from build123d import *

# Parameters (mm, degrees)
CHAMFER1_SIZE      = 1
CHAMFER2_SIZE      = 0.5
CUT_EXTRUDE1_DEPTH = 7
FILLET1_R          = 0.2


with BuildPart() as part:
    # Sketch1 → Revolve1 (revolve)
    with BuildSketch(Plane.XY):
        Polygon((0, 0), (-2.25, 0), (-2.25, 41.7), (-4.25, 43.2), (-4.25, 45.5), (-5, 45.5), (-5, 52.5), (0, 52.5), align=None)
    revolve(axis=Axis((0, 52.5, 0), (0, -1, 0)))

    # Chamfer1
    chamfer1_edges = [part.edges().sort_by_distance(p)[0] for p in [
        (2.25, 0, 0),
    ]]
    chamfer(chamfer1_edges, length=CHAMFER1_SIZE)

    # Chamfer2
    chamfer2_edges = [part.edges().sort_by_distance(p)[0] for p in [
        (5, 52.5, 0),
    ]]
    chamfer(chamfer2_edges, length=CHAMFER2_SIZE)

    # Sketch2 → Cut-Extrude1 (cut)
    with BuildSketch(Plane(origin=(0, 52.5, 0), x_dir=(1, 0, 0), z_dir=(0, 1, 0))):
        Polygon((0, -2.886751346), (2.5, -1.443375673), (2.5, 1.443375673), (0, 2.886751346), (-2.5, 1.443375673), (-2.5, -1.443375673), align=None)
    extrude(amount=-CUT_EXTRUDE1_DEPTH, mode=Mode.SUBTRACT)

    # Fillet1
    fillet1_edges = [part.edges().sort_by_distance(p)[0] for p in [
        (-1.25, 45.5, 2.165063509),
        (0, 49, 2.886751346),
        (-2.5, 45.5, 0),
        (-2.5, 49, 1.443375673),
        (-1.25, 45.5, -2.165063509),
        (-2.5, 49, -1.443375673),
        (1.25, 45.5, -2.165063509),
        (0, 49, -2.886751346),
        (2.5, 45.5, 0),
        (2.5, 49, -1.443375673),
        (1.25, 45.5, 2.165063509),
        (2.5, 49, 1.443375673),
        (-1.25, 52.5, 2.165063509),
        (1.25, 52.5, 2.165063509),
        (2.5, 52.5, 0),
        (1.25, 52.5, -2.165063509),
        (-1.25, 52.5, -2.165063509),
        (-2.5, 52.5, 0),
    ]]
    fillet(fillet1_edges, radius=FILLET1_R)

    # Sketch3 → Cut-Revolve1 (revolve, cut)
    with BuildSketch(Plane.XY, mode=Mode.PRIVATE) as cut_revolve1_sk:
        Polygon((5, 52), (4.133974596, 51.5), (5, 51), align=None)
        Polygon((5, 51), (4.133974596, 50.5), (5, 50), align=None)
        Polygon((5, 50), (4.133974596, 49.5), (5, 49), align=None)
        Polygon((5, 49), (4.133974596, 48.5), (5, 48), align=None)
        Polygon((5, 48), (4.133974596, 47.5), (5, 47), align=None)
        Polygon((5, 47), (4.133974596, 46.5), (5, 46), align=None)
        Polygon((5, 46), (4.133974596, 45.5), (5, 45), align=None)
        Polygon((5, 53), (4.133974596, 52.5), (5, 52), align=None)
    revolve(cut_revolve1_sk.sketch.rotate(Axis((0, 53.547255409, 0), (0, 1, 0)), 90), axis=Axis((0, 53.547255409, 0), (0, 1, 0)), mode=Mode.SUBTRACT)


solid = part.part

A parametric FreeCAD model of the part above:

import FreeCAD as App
import Part
import Sketcher
from FreeCAD import Vector
Q = App.Units.Quantity


def edges_at(feature, points):
    """Names of the edges that pass closest to the given points."""
    edges = feature.Shape.Edges
    near = lambda p: min(range(len(edges)), key=lambda i: edges[i].distToShape(Part.Vertex(*p))[0])
    return sorted({f"Edge{near(p) + 1}" for p in points})

doc = App.newDocument("Part")
params = doc.addObject("Spreadsheet::Sheet", "Params")
for row, (alias, value) in enumerate([
    ("sketch1_width", "5 mm"),
    ("sketch1_height", "7 mm"),
    ("sketch1_height2", "52.5 mm"),
    ("sketch1_height3", "2.3 mm"),
    ("sketch1_height4", "41.7 mm"),
    ("revolution_angle", "360 deg"),
    ("chamfer_size", "1 mm"),
    ("chamfer2_size", "0.5 mm"),
    ("pocket1_length", "7 mm"),
    ("fillet_radius", "0.2 mm"),
    ("sketch3_height", "1 mm"),
    ("groove_angle", "360 deg"),
], start=1):
    params.set(f"A{row}", alias)
    params.set(f"B{row}", "=" + value)
    params.setAlias(f"B{row}", alias)

body = doc.addObject("PartDesign::Body", "Body")

sketch1 = body.newObject("Sketcher::SketchObject", "Sketch")
sketch1.AttachmentSupport = (doc.getObject("XY_Plane"), [""])
sketch1.MapMode = "FlatFace"
sketch1.addGeometry([
    Part.LineSegment(Vector(-2.2, 0, 0), Vector(0, 0, 0)),
    Part.LineSegment(Vector(0, 0, 0), Vector(0, 52.5, 0)),
    Part.LineSegment(Vector(0, 52.5, 0), Vector(-5, 52.5, 0)),
    Part.LineSegment(Vector(-5, 52.5, 0), Vector(-5, 45.5, 0)),
    Part.LineSegment(Vector(-5, 45.5, 0), Vector(-4.2, 45.5, 0)),
    Part.LineSegment(Vector(-4.2, 45.5, 0), Vector(-4.2, 43.2, 0)),
    Part.LineSegment(Vector(-4.2, 43.2, 0), Vector(-2.2, 41.7, 0)),
    Part.LineSegment(Vector(-2.2, 41.7, 0), Vector(-2.2, 0, 0)),
], False)
sketch1.addConstraint([
    Sketcher.Constraint("Coincident", 0, 2, 1, 1),
    Sketcher.Constraint("Coincident", 1, 2, 2, 1),
    Sketcher.Constraint("Coincident", 2, 2, 3, 1),
    Sketcher.Constraint("Coincident", 3, 2, 4, 1),
    Sketcher.Constraint("Coincident", 4, 2, 5, 1),
    Sketcher.Constraint("Coincident", 5, 2, 6, 1),
    Sketcher.Constraint("Coincident", 6, 2, 7, 1),
    Sketcher.Constraint("Coincident", 7, 2, 0, 1),
    Sketcher.Constraint("Horizontal", 0),
    Sketcher.Constraint("Vertical", 1),
    Sketcher.Constraint("Horizontal", 2),
    Sketcher.Constraint("Vertical", 3),
    Sketcher.Constraint("Horizontal", 4),
    Sketcher.Constraint("Vertical", 5),
    Sketcher.Constraint("Vertical", 7),
    Sketcher.Constraint("Coincident", 0, 2, -1, 1),
    Sketcher.Constraint("DistanceX", 2, 2, 2, 1, Q("5 mm")),
    Sketcher.Constraint("DistanceY", 3, 2, 3, 1, Q("7 mm")),
    Sketcher.Constraint("DistanceY", 1, 1, 1, 2, Q("52.5 mm")),
    Sketcher.Constraint("DistanceY", 5, 2, 5, 1, Q("2.3 mm")),
    Sketcher.Constraint("DistanceY", 7, 2, 7, 1, Q("41.7 mm")),
    Sketcher.Constraint("DistanceX", 5, 2, 6, 2, Q("2 mm")),
    Sketcher.Constraint("DistanceX", 0, 1, 0, 2, Q("2.25 mm")),
])
sketch1.setExpression("Constraints[16]", "Params.sketch1_width")
sketch1.setExpression("Constraints[17]", "Params.sketch1_height")
sketch1.setExpression("Constraints[18]", "Params.sketch1_height2")
sketch1.setExpression("Constraints[19]", "Params.sketch1_height3")
sketch1.setExpression("Constraints[20]", "Params.sketch1_height4")
revolution = body.newObject("PartDesign::Revolution", "Revolution")
revolution.Profile = sketch1
revolution.ReferenceAxis = (sketch1, ["V_Axis"])
revolution.setExpression("Angle", "Params.revolution_angle")
doc.recompute()

chamfer = body.newObject("PartDesign::Chamfer", "Chamfer")
chamfer.Base = (revolution, edges_at(revolution, [(2.25, 0, 0)]))
chamfer.setExpression("Size", "Params.chamfer_size")
doc.recompute()

chamfer2 = body.newObject("PartDesign::Chamfer", "Chamfer001")
chamfer2.Base = (chamfer, edges_at(chamfer, [(5, 52.5, 0)]))
chamfer2.setExpression("Size", "Params.chamfer2_size")

sketch2 = body.newObject("Sketcher::SketchObject", "Sketch001")
sketch2.AttachmentSupport = (doc.getObject("XZ_Plane"), [""])
sketch2.MapMode = "FlatFace"
sketch2.AttachmentOffset = App.Placement(Vector(0, 0, -52.5), App.Rotation())
sketch2.addGeometry([
    Part.LineSegment(Vector(0, 2.9, 0), Vector(2.5, 1.4, 0)),
    Part.LineSegment(Vector(2.5, 1.4, 0), Vector(2.5, -1.4, 0)),
    Part.LineSegment(Vector(2.5, -1.4, 0), Vector(0, -2.9, 0)),
    Part.LineSegment(Vector(0, -2.9, 0), Vector(-2.5, -1.4, 0)),
    Part.LineSegment(Vector(-2.5, -1.4, 0), Vector(-2.5, 1.4, 0)),
    Part.LineSegment(Vector(-2.5, 1.4, 0), Vector(0, 2.9, 0)),
], False)
sketch2.addConstraint([
    Sketcher.Constraint("Coincident", 0, 2, 1, 1),
    Sketcher.Constraint("Coincident", 1, 2, 2, 1),
    Sketcher.Constraint("Coincident", 2, 2, 3, 1),
    Sketcher.Constraint("Coincident", 3, 2, 4, 1),
    Sketcher.Constraint("Coincident", 4, 2, 5, 1),
    Sketcher.Constraint("Coincident", 5, 2, 0, 1),
    Sketcher.Constraint("Vertical", 1),
    Sketcher.Constraint("Vertical", 4),
    Sketcher.Constraint("Symmetric", 0, 2, 3, 2, -1, 1),
    Sketcher.Constraint("Symmetric", 2, 2, 5, 2, -1, 1),
    Sketcher.Constraint("PointOnObject", 2, 2, -2),
    Sketcher.Constraint("Parallel", 2, 5),
    Sketcher.Constraint("Horizontal", 1, 2, 3, 2),
    Sketcher.Constraint("Angle", 0, Q("-30 deg")),
    Sketcher.Constraint("DistanceX", 3, 2, 1, 2, Q("5 mm")),
    Sketcher.Constraint("DistanceY", 1, 2, 1, 1, Q("2.886751 mm")),
])
pocket1 = body.newObject("PartDesign::Pocket", "Pocket")
pocket1.Profile = sketch2
pocket1.setExpression("Length", "Params.pocket1_length")
pocket1.Reversed = True
doc.recompute()

fillet = body.newObject("PartDesign::Fillet", "Fillet")
fillet.Base = (pocket1, edges_at(pocket1, [
    (-1.25, 45.5, 2.165),
    (0, 49, 2.887),
    (-2.5, 45.5, 0),
    (-2.5, 49, 1.443),
    (-1.25, 45.5, -2.165),
    (-2.5, 49, -1.443),
    (1.25, 45.5, -2.165),
    (0, 49, -2.887),
    (2.5, 45.5, 0),
    (2.5, 49, -1.443),
    (1.25, 45.5, 2.165),
    (2.5, 49, 1.443),
    (-1.25, 52.5, 2.165),
    (1.25, 52.5, 2.165),
    (2.5, 52.5, 0),
    (1.25, 52.5, -2.165),
    (-1.25, 52.5, -2.165),
    (-2.5, 52.5, 0),
]))
fillet.setExpression("Radius", "Params.fillet_radius")

sketch3 = body.newObject("Sketcher::SketchObject", "Sketch002")
sketch3.AttachmentSupport = (doc.getObject("XY_Plane"), [""])
sketch3.MapMode = "FlatFace"
sketch3.addGeometry([
    Part.LineSegment(Vector(5, 52, 0), Vector(4.1, 51.5, 0)),
    Part.LineSegment(Vector(4.1, 51.5, 0), Vector(5, 51, 0)),
    Part.LineSegment(Vector(5, 51, 0), Vector(5, 52, 0)),
    Part.LineSegment(Vector(5, 51, 0), Vector(4.1, 50.5, 0)),
    Part.LineSegment(Vector(4.1, 50.5, 0), Vector(5, 50, 0)),
    Part.LineSegment(Vector(5, 50, 0), Vector(5, 51, 0)),
    Part.LineSegment(Vector(5, 50, 0), Vector(4.1, 49.5, 0)),
    Part.LineSegment(Vector(4.1, 49.5, 0), Vector(5, 49, 0)),
    Part.LineSegment(Vector(5, 49, 0), Vector(5, 50, 0)),
    Part.LineSegment(Vector(5, 49, 0), Vector(4.1, 48.5, 0)),
    Part.LineSegment(Vector(4.1, 48.5, 0), Vector(5, 48, 0)),
    Part.LineSegment(Vector(5, 48, 0), Vector(5, 49, 0)),
    Part.LineSegment(Vector(5, 48, 0), Vector(4.1, 47.5, 0)),
    Part.LineSegment(Vector(4.1, 47.5, 0), Vector(5, 47, 0)),
    Part.LineSegment(Vector(5, 47, 0), Vector(5, 48, 0)),
    Part.LineSegment(Vector(5, 47, 0), Vector(4.1, 46.5, 0)),
    Part.LineSegment(Vector(4.1, 46.5, 0), Vector(5, 46, 0)),
    Part.LineSegment(Vector(5, 46, 0), Vector(5, 47, 0)),
    Part.LineSegment(Vector(5, 46, 0), Vector(4.1, 45.5, 0)),
    Part.LineSegment(Vector(4.1, 45.5, 0), Vector(5, 45, 0)),
    Part.LineSegment(Vector(5, 45, 0), Vector(5, 46, 0)),
    Part.LineSegment(Vector(5, 53, 0), Vector(4.1, 52.5, 0)),
    Part.LineSegment(Vector(4.1, 52.5, 0), Vector(5, 52, 0)),
    Part.LineSegment(Vector(5, 52, 0), Vector(5, 53, 0)),
], False)
sketch3.addConstraint([
    Sketcher.Constraint("Coincident", 0, 2, 1, 1),
    Sketcher.Constraint("Coincident", 1, 2, 2, 1),
    Sketcher.Constraint("Coincident", 2, 2, 0, 1),
    Sketcher.Constraint("Coincident", 3, 2, 4, 1),
    Sketcher.Constraint("Coincident", 4, 2, 5, 1),
    Sketcher.Constraint("Coincident", 5, 2, 3, 1),
    Sketcher.Constraint("Coincident", 6, 2, 7, 1),
    Sketcher.Constraint("Coincident", 7, 2, 8, 1),
    Sketcher.Constraint("Coincident", 8, 2, 6, 1),
    Sketcher.Constraint("Coincident", 9, 2, 10, 1),
    Sketcher.Constraint("Coincident", 10, 2, 11, 1),
    Sketcher.Constraint("Coincident", 11, 2, 9, 1),
    Sketcher.Constraint("Coincident", 12, 2, 13, 1),
    Sketcher.Constraint("Coincident", 13, 2, 14, 1),
    Sketcher.Constraint("Coincident", 14, 2, 12, 1),
    Sketcher.Constraint("Coincident", 15, 2, 16, 1),
    Sketcher.Constraint("Coincident", 16, 2, 17, 1),
    Sketcher.Constraint("Coincident", 17, 2, 15, 1),
    Sketcher.Constraint("Coincident", 18, 2, 19, 1),
    Sketcher.Constraint("Coincident", 19, 2, 20, 1),
    Sketcher.Constraint("Coincident", 20, 2, 18, 1),
    Sketcher.Constraint("Coincident", 21, 2, 22, 1),
    Sketcher.Constraint("Coincident", 22, 2, 23, 1),
    Sketcher.Constraint("Coincident", 23, 2, 21, 1),
    Sketcher.Constraint("Vertical", 2),
    Sketcher.Constraint("Vertical", 5),
    Sketcher.Constraint("Vertical", 8),
    Sketcher.Constraint("Vertical", 11),
    Sketcher.Constraint("Vertical", 14),
    Sketcher.Constraint("Vertical", 17),
    Sketcher.Constraint("Vertical", 20),
    Sketcher.Constraint("Vertical", 23),
    Sketcher.Constraint("Coincident", 5, 2, 1, 2),
    Sketcher.Constraint("Coincident", 8, 2, 4, 2),
    Sketcher.Constraint("Coincident", 11, 2, 7, 2),
    Sketcher.Constraint("Coincident", 14, 2, 10, 2),
    Sketcher.Constraint("Coincident", 17, 2, 13, 2),
    Sketcher.Constraint("Coincident", 20, 2, 16, 2),
    Sketcher.Constraint("Coincident", 22, 2, 2, 2),
    Sketcher.Constraint("Parallel", 0, 3),
    Sketcher.Constraint("Parallel", 1, 4),
    Sketcher.Constraint("Parallel", 3, 6),
    Sketcher.Constraint("Parallel", 4, 7),
    Sketcher.Constraint("Parallel", 6, 9),
    Sketcher.Constraint("Parallel", 7, 10),
    Sketcher.Constraint("Parallel", 9, 12),
    Sketcher.Constraint("Parallel", 10, 13),
    Sketcher.Constraint("Parallel", 12, 15),
    Sketcher.Constraint("Parallel", 13, 16),
    Sketcher.Constraint("Parallel", 15, 18),
    Sketcher.Constraint("Parallel", 16, 19),
    Sketcher.Constraint("Parallel", 18, 21),
    Sketcher.Constraint("Parallel", 19, 22),
    Sketcher.Constraint("Vertical", 0, 2, 3, 2),
    Sketcher.Constraint("Vertical", 3, 2, 6, 2),
    Sketcher.Constraint("Vertical", 6, 2, 9, 2),
    Sketcher.Constraint("Vertical", 9, 2, 12, 2),
    Sketcher.Constraint("Vertical", 12, 2, 15, 2),
    Sketcher.Constraint("Vertical", 15, 2, 18, 2),
    Sketcher.Constraint("Vertical", 18, 2, 21, 2),
    Sketcher.Constraint("Equal", 0, 1),
    Sketcher.Constraint("DistanceY", 2, 1, 2, 2, Q("1 mm")),
    Sketcher.Constraint("Angle", 0, Q("-150 deg")),
    Sketcher.Constraint("DistanceX", -1, 1, 1, 2, Q("5 mm")),
    Sketcher.Constraint("DistanceY", -1, 1, 1, 2, Q("51 mm")),
])
sketch3.setExpression("Constraints[61]", "Params.sketch3_height")
groove = body.newObject("PartDesign::Groove", "Groove")
groove.Profile = sketch3
groove.ReferenceAxis = (sketch3, ["V_Axis"])
groove.setExpression("Angle", "Params.groove_angle")

doc.recompute()
